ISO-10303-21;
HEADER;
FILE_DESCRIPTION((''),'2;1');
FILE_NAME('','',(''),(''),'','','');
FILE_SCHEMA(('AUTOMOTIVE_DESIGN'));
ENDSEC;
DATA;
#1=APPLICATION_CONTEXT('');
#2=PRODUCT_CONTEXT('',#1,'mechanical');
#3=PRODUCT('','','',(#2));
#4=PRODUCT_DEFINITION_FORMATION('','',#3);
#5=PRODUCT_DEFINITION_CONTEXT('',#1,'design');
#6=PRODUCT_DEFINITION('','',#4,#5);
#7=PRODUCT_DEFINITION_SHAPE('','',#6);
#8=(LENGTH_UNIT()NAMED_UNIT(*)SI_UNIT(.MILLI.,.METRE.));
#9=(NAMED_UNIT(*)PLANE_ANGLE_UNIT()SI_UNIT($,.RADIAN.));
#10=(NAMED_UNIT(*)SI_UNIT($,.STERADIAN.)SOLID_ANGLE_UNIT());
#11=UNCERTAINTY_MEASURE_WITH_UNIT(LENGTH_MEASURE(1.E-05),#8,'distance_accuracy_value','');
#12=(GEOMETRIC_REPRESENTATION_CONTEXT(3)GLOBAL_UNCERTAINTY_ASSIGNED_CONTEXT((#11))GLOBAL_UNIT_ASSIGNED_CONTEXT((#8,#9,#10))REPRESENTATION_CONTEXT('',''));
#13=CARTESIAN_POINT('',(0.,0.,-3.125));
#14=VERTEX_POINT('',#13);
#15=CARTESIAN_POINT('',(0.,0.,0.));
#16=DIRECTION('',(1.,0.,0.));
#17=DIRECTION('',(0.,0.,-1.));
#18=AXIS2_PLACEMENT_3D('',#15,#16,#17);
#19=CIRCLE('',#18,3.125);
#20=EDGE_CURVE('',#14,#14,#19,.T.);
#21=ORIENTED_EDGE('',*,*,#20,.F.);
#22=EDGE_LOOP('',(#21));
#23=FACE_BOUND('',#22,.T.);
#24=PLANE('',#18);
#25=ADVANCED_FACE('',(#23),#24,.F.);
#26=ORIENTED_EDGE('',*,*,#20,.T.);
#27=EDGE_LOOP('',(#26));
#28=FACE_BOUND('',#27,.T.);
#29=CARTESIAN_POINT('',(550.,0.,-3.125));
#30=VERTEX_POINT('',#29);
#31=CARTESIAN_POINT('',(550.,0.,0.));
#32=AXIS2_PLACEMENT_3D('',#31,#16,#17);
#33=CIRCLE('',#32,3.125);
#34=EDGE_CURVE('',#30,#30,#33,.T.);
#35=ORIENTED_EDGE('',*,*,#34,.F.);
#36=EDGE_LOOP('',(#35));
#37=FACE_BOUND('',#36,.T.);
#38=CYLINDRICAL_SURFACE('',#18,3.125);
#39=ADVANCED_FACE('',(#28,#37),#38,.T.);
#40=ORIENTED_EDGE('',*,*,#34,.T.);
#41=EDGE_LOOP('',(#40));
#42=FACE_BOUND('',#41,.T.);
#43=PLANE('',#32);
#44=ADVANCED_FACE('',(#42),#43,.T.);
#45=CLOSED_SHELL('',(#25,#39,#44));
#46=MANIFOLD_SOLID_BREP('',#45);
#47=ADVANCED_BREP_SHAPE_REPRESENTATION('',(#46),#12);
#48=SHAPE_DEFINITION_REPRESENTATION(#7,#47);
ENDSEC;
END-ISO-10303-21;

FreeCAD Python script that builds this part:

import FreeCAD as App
import Part
import Sketcher
Q = App.Units.Quantity

doc = App.newDocument("Part")
body = doc.addObject("PartDesign::Body", "Body")

sketch1 = doc.addObject("Sketcher::SketchObject", "Sketch")
body.addObject(sketch1)
sketch1.AttachmentSupport = (doc.YZ_Plane, [""])
sketch1.MapMode = "FlatFace"
sketch1.addGeometry(Part.Circle(App.Vector(0, 0, 0), App.Vector(0, 0, 1), 3.1), False)
sketch1.addConstraint([
    Sketcher.Constraint("Coincident", 0, 3, -1, 1),
    Sketcher.Constraint("Diameter", 0, Q("6.25 mm")),
])

sketch2 = doc.addObject("Sketcher::SketchObject", "Sketch001")
body.addObject(sketch2)
sketch2.AttachmentSupport = (doc.XY_Plane, [""])
sketch2.MapMode = "FlatFace"
sketch2.addGeometry(Part.LineSegment(App.Vector(0, 0, 0), App.Vector(550, 0, 0)), False)
sketch2.addConstraint([
    Sketcher.Constraint("Horizontal", 0),
    Sketcher.Constraint("Coincident", 0, 1, -1, 1),
    Sketcher.Constraint("DistanceX", 0, 1, 0, 2, Q("550 mm")),
])
doc.recompute()

additivepipe = doc.addObject("PartDesign::AdditivePipe", "AdditivePipe")
body.addObject(additivepipe)
additivepipe.Profile = sketch1
additivepipe.Spine = (sketch2, ["Edge1"])

doc.recompute()
